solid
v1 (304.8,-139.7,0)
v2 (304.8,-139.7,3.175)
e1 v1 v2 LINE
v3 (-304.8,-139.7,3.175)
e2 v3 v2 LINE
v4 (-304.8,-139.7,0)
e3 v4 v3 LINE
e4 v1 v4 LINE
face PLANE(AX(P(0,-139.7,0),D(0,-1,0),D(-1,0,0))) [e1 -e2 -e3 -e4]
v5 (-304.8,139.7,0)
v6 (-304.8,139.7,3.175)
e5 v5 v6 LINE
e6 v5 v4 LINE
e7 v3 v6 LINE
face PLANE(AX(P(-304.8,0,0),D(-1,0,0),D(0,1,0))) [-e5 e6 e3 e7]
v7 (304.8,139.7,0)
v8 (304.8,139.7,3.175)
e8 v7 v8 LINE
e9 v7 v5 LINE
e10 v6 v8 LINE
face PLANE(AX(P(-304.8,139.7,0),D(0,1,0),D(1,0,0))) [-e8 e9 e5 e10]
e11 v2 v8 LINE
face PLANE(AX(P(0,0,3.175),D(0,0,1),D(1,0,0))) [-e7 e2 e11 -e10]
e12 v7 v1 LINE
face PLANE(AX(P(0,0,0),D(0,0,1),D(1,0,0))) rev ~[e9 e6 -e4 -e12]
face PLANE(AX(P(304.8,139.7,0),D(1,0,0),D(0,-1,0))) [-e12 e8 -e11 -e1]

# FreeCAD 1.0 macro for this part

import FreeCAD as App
import Part
import Sketcher
Q = App.Units.Quantity


def add_polygon(sketch, points):
    """Adds a closed chain of lines whose ends are joined by coincident constraints."""
    first, n = sketch.GeometryCount, len(points)
    for a, b in zip(points, points[1:] + points[:1]):
        sketch.addGeometry(Part.LineSegment(App.Vector(*a, 0), App.Vector(*b, 0)), False)
    for i in range(n):
        sketch.addConstraint(Sketcher.Constraint("Coincident", first + i, 2, first + (i + 1) % n, 1))

doc = App.newDocument("Part")
body = doc.addObject("PartDesign::Body", "Body")

sketch1 = body.newObject("Sketcher::SketchObject", "Sketch")
sketch1.AttachmentSupport = (doc.getObject("XY_Plane"), [""])
sketch1.MapMode = "FlatFace"
add_polygon(sketch1, [(-305, 140), (-305, -140), (305, -140), (305, 140)])
sketch1.addConstraint([
    Sketcher.Constraint("Vertical", 0),
    Sketcher.Constraint("Horizontal", 1),
    Sketcher.Constraint("Vertical", 2),
    Sketcher.Constraint("Horizontal", 3),
    Sketcher.Constraint("Symmetric", 0, 2, 2, 2, -1, 1),
    Sketcher.Constraint("DistanceX", 1, 1, 1, 2, Q("24 in")),
    Sketcher.Constraint("DistanceY", 0, 2, 0, 1, Q("11 in")),
])
pad1 = body.newObject("PartDesign::Pad", "Pad")
pad1.Profile = sketch1
pad1.Length = Q("0.125 in")

doc.recompute()
